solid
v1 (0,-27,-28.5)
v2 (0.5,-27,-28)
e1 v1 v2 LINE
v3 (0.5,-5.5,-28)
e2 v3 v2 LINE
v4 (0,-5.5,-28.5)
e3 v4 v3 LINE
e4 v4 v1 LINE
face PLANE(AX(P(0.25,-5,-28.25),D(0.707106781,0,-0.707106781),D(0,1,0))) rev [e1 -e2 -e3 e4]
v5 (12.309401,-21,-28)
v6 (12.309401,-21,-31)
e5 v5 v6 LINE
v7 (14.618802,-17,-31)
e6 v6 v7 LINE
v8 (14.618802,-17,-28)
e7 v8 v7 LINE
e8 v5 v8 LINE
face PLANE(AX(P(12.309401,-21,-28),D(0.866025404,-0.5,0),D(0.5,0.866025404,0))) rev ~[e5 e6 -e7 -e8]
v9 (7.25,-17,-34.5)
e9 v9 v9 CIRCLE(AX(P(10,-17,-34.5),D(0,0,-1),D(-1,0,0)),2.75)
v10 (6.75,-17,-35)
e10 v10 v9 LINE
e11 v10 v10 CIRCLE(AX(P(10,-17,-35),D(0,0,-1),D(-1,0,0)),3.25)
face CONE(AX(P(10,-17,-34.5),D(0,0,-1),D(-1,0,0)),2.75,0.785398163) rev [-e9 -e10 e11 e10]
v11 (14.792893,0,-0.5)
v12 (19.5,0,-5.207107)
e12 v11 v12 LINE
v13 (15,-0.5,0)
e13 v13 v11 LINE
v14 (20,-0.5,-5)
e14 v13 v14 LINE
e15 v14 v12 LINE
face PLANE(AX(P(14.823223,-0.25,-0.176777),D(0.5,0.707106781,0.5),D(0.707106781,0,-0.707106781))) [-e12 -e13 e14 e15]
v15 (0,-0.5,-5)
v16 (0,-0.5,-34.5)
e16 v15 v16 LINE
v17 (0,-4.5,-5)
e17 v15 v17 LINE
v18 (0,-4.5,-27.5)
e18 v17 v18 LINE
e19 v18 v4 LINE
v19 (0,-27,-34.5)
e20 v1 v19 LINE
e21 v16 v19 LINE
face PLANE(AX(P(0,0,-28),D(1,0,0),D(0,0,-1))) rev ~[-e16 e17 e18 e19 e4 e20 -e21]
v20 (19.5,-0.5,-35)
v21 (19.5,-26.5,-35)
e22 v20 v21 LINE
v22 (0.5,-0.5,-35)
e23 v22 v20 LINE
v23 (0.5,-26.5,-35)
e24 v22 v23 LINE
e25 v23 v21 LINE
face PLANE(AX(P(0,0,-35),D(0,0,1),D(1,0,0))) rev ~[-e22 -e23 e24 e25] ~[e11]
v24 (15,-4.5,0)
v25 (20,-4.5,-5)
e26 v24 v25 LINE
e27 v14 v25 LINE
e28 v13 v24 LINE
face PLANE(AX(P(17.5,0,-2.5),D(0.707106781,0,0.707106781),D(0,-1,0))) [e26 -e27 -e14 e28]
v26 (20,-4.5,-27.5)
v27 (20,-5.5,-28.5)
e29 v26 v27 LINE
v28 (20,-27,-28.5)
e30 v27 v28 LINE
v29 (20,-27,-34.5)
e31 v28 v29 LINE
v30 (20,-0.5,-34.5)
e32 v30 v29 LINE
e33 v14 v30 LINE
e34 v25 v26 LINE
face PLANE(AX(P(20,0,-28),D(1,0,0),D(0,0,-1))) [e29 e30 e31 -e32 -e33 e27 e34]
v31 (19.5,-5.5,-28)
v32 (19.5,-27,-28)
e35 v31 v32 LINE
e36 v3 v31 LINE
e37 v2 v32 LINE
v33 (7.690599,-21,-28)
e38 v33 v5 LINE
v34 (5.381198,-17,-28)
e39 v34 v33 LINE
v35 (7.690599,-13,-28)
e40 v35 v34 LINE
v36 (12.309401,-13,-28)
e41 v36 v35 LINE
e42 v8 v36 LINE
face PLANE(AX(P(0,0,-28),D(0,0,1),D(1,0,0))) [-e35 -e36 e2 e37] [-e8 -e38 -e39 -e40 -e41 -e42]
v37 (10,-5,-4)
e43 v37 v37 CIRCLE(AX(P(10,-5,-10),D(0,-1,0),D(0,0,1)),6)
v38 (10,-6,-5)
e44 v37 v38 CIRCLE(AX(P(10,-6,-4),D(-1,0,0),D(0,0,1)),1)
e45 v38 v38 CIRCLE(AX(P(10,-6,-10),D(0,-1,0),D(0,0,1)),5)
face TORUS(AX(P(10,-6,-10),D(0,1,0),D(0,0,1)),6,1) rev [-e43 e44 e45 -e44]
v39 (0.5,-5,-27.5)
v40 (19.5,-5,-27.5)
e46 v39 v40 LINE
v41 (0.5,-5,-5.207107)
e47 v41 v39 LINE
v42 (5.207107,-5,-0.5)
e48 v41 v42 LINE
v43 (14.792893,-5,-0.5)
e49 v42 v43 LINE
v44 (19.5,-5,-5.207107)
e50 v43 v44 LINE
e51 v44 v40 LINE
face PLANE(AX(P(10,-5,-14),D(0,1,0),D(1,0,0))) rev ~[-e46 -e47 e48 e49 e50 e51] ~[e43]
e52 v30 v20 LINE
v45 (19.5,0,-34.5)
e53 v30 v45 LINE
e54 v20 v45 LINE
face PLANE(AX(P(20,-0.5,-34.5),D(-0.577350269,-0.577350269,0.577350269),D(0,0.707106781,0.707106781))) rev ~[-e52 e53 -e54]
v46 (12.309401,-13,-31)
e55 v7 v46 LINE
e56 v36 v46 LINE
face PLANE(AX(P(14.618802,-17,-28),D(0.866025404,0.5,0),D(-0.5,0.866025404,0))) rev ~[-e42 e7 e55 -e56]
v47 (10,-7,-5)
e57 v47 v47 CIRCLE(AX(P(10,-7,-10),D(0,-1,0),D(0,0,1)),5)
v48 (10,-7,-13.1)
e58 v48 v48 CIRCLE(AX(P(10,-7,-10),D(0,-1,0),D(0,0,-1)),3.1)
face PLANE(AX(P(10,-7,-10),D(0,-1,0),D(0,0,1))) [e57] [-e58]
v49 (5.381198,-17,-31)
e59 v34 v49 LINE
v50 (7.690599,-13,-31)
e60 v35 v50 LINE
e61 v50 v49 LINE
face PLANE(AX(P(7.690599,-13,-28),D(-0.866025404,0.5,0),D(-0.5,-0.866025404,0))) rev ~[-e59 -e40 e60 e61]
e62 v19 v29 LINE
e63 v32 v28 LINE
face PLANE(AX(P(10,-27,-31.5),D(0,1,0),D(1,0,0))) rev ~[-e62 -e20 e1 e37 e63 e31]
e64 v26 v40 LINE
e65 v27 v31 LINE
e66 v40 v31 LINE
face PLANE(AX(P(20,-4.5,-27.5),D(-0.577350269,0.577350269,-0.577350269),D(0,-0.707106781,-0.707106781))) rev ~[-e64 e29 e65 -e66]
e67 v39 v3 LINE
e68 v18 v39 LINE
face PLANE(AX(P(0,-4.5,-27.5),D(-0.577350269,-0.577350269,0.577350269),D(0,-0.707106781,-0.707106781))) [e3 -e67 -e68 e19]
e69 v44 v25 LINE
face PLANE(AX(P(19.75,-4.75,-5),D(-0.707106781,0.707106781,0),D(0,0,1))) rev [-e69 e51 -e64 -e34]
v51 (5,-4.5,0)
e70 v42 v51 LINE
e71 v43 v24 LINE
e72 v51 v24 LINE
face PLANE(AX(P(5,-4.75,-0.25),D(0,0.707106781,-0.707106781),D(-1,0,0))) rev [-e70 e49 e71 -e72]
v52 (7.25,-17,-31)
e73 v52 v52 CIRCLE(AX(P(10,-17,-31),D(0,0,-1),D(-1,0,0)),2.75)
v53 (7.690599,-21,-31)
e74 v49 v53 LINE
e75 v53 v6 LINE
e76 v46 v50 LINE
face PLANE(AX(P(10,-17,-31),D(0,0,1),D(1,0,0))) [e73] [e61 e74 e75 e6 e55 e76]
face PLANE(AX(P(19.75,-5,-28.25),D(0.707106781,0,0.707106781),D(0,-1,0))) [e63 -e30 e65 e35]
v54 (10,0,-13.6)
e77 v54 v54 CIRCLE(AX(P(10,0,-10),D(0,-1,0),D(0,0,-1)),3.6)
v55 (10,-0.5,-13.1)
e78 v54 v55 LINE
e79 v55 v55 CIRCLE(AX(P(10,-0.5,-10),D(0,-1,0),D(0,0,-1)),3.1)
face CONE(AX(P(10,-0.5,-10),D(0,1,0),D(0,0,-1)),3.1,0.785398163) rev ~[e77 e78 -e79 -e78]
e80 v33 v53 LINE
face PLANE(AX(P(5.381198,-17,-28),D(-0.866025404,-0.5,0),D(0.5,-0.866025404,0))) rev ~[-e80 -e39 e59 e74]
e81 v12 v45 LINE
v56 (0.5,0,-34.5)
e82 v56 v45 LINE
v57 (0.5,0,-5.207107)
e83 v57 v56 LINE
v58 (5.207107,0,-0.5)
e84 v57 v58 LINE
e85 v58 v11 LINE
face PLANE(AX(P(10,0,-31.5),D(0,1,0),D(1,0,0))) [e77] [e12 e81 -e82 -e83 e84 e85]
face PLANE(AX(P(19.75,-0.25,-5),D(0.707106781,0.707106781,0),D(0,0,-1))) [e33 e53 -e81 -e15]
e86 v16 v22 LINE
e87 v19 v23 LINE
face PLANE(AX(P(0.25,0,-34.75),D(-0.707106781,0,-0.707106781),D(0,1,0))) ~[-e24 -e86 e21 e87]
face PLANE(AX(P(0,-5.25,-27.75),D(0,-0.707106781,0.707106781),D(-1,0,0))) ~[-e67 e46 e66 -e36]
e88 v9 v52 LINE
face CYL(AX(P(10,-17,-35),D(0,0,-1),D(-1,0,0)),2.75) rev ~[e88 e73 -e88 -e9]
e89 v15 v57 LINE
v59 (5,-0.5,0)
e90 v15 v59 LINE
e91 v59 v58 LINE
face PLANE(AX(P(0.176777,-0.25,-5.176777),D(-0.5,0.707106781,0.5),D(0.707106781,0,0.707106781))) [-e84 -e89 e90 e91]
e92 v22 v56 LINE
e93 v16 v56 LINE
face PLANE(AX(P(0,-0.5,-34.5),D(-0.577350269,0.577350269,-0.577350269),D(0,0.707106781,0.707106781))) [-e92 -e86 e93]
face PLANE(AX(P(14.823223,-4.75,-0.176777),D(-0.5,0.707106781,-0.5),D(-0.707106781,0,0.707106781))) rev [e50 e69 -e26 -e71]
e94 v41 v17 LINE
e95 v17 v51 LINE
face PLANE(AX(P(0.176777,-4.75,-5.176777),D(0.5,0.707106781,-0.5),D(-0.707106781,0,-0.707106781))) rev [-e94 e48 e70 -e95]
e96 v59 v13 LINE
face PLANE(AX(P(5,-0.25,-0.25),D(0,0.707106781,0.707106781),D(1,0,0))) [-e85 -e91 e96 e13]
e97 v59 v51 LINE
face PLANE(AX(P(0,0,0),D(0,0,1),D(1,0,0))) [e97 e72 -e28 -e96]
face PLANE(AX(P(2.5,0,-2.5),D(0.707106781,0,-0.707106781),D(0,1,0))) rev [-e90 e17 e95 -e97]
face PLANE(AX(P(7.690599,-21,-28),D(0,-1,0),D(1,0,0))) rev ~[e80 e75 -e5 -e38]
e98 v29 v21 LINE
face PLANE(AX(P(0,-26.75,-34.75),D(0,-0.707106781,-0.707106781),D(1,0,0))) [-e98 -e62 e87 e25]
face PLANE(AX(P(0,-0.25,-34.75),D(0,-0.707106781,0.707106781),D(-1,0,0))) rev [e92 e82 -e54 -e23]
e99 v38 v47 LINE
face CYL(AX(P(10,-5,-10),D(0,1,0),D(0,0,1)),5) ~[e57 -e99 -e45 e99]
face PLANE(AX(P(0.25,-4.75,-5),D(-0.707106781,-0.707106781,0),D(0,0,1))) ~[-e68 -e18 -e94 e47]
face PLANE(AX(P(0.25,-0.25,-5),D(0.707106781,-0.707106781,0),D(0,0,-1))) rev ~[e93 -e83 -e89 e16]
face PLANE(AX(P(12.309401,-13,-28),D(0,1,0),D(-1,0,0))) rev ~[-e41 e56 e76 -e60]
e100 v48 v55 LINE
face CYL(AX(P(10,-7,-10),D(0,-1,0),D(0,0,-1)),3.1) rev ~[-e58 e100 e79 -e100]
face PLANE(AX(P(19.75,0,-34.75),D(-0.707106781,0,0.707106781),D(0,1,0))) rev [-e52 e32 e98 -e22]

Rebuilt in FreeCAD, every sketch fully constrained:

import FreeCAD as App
import Part
import Sketcher
from FreeCAD import Vector
Q = App.Units.Quantity


def edges_at(feature, points):
    """Names of the edges that pass closest to the given points."""
    edges = feature.Shape.Edges
    near = lambda p: min(range(len(edges)), key=lambda i: edges[i].distToShape(Part.Vertex(*p))[0])
    return sorted({f"Edge{near(p) + 1}" for p in points})


def add_polygon(sketch, points):
    """Adds a closed chain of lines whose ends are joined by coincident constraints."""
    first, n = sketch.GeometryCount, len(points)
    for a, b in zip(points, points[1:] + points[:1]):
        sketch.addGeometry(Part.LineSegment(App.Vector(*a, 0), App.Vector(*b, 0)), False)
    for i in range(n):
        sketch.addConstraint(Sketcher.Constraint("Coincident", first + i, 2, first + (i + 1) % n, 1))

doc = App.newDocument("Part")
params = doc.addObject("Spreadsheet::Sheet", "Params")
for row, (alias, value) in enumerate([
    ("sketch1_width", "20 mm"),
    ("sketch1_height", "28 mm"),
    ("pad1_length", "5 mm"),
    ("sketch2_width", "20 mm"),
    ("sketch2_height", "7 mm"),
    ("pad2_length", "27 mm"),
    ("sketch3_diameter", "10 mm"),
    ("pad3_length", "2 mm"),
    ("sketch4_diameter", "5.5 mm"),
    ("fillet_radius", "1 mm"),
    ("sketch5_diameter", "6.2 mm"),
    ("pocket3_length", "3 mm"),
    ("chamfer_size", "5 mm"),
    ("chamfer2_size", "0.5 mm"),
], start=1):
    params.set(f"A{row}", alias)
    params.set(f"B{row}", "=" + value)
    params.setAlias(f"B{row}", alias)

body = doc.addObject("PartDesign::Body", "Body")

sketch1 = doc.addObject("Sketcher::SketchObject", "Sketch")
body.addObject(sketch1)
sketch1.AttachmentSupport = (doc.XZ_Plane, [""])
sketch1.MapMode = "FlatFace"
add_polygon(sketch1, [(0, -28), (0, 0), (20, 0), (20, -28)])
sketch1.addConstraint([
    Sketcher.Constraint("Vertical", 0),
    Sketcher.Constraint("Horizontal", 1),
    Sketcher.Constraint("Vertical", 2),
    Sketcher.Constraint("Horizontal", 3),
    Sketcher.Constraint("Coincident", 0, 2, -1, 1),
    Sketcher.Constraint("DistanceX", 1, 1, 1, 2, Q("20 mm")),
    Sketcher.Constraint("DistanceY", 0, 1, 0, 2, Q("28 mm")),
])
sketch1.setExpression("Constraints[9]", "Params.sketch1_width")
sketch1.setExpression("Constraints[10]", "Params.sketch1_height")
pad1 = doc.addObject("PartDesign::Pad", "Pad")
body.addObject(pad1)
pad1.Profile = sketch1
pad1.setExpression("Length", "Params.pad1_length")

sketch2 = doc.addObject("Sketcher::SketchObject", "Sketch001")
body.addObject(sketch2)
sketch2.AttachmentSupport = (doc.XZ_Plane, [""])
sketch2.MapMode = "FlatFace"
add_polygon(sketch2, [(0, -35), (0, -28), (20, -28), (20, -35)])
sketch2.addConstraint([
    Sketcher.Constraint("Vertical", 0),
    Sketcher.Constraint("Horizontal", 1),
    Sketcher.Constraint("Vertical", 2),
    Sketcher.Constraint("Horizontal", 3),
    Sketcher.Constraint("PointOnObject", 0, 2, -2),
    Sketcher.Constraint("DistanceX", 1, 1, 1, 2, Q("20 mm")),
    Sketcher.Constraint("DistanceY", 0, 1, 0, 2, Q("7 mm")),
    Sketcher.Constraint("DistanceY", 0, 2, -1, 1, Q("28 mm")),
])
sketch2.setExpression("Constraints[9]", "Params.sketch2_width")
sketch2.setExpression("Constraints[10]", "Params.sketch2_height")
pad2 = doc.addObject("PartDesign::Pad", "Pad001")
body.addObject(pad2)
pad2.Profile = sketch2
pad2.setExpression("Length", "Params.pad2_length")

sketch3 = doc.addObject("Sketcher::SketchObject", "Sketch002")
body.addObject(sketch3)
sketch3.AttachmentSupport = (doc.XZ_Plane, [""])
sketch3.MapMode = "FlatFace"
sketch3.AttachmentOffset = App.Placement(Vector(0, 0, 5), App.Rotation())
sketch3.addGeometry(Part.Circle(Vector(10, -10, 0), Vector(0, 0, 1), 5), False)
sketch3.addConstraint([
    Sketcher.Constraint("Diameter", 0, Q("10 mm")),
    Sketcher.Constraint("DistanceX", -1, 1, 0, 3, Q("10 mm")),
    Sketcher.Constraint("DistanceY", 0, 3, -1, 1, Q("10 mm")),
])
sketch3.setExpression("Constraints[0]", "Params.sketch3_diameter")
pad3 = doc.addObject("PartDesign::Pad", "Pad002")
body.addObject(pad3)
pad3.Profile = sketch3
pad3.setExpression("Length", "Params.pad3_length")

sketch4 = doc.addObject("Sketcher::SketchObject", "Sketch003")
body.addObject(sketch4)
sketch4.AttachmentSupport = (doc.XY_Plane, [""])
sketch4.MapMode = "FlatFace"
sketch4.AttachmentOffset = App.Placement(Vector(0, 0, -35), App.Rotation())
sketch4.addGeometry(Part.Circle(Vector(10, -17, 0), Vector(0, 0, 1), 2.8), False)
sketch4.addConstraint([
    Sketcher.Constraint("Diameter", 0, Q("5.5 mm")),
    Sketcher.Constraint("DistanceX", -1, 1, 0, 3, Q("10 mm")),
    Sketcher.Constraint("DistanceY", 0, 3, -1, 1, Q("17 mm")),
])
sketch4.setExpression("Constraints[0]", "Params.sketch4_diameter")
pocket1 = doc.addObject("PartDesign::Pocket", "Pocket")
body.addObject(pocket1)
pocket1.Profile = sketch4
pocket1.Type = "ThroughAll"
pocket1.Reversed = True
doc.recompute()

fillet = doc.addObject("PartDesign::Fillet", "Fillet")
body.addObject(fillet)
fillet.Base = (pocket1, edges_at(pocket1, [(10, -5, -15)]))
fillet.setExpression("Radius", "Params.fillet_radius")

sketch5 = doc.addObject("Sketcher::SketchObject", "Sketch004")
body.addObject(sketch5)
sketch5.AttachmentSupport = (doc.XZ_Plane, [""])
sketch5.MapMode = "FlatFace"
sketch5.AttachmentOffset = App.Placement(Vector(0, 0, 7), App.Rotation())
sketch5.addGeometry(Part.Circle(Vector(10, -10, 0), Vector(0, 0, 1), 3.1), False)
sketch5.addConstraint([
    Sketcher.Constraint("Diameter", 0, Q("6.2 mm")),
    Sketcher.Constraint("DistanceX", -1, 1, 0, 3, Q("10 mm")),
    Sketcher.Constraint("DistanceY", 0, 3, -1, 1, Q("10 mm")),
])
sketch5.setExpression("Constraints[0]", "Params.sketch5_diameter")
pocket2 = doc.addObject("PartDesign::Pocket", "Pocket001")
body.addObject(pocket2)
pocket2.Profile = sketch5
pocket2.Type = "ThroughAll"

sketch6 = doc.addObject("Sketcher::SketchObject", "Sketch005")
body.addObject(sketch6)
sketch6.AttachmentSupport = (doc.XY_Plane, [""])
sketch6.MapMode = "FlatFace"
sketch6.AttachmentOffset = App.Placement(Vector(0, 0, -28), App.Rotation())
add_polygon(sketch6, [(14.6, -17), (12.3, -13), (7.7, -13), (5.4, -17), (7.7, -21), (12.3, -21)])
sketch6.addConstraint([
    Sketcher.Constraint("Horizontal", 1),
    Sketcher.Constraint("Horizontal", 4),
    Sketcher.Constraint("Parallel", 0, 3),
    Sketcher.Constraint("Parallel", 2, 5),
    Sketcher.Constraint("Horizontal", 2, 2, 5, 2),
    Sketcher.Constraint("Vertical", 1, 2, 3, 2),
    Sketcher.Constraint("Vertical", 0, 2, 4, 2),
    Sketcher.Constraint("Angle", 0, Q("120 deg")),
    Sketcher.Constraint("DistanceY", 0, 2, -1, 1, Q("13 mm")),
    Sketcher.Constraint("DistanceY", 2, 2, -1, 1, Q("17 mm")),
    Sketcher.Constraint("DistanceX", -1, 1, 0, 2, Q("12.309401 mm")),
    Sketcher.Constraint("DistanceX", -1, 1, 1, 2, Q("7.690599 mm")),
])
pocket3 = doc.addObject("PartDesign::Pocket", "Pocket002")
body.addObject(pocket3)
pocket3.Profile = sketch6
pocket3.setExpression("Length", "Params.pocket3_length")
doc.recompute()

chamfer = doc.addObject("PartDesign::Chamfer", "Chamfer")
body.addObject(chamfer)
chamfer.Base = (pocket3, edges_at(pocket3, [(0, -2.5, 0), (20, -2.5, 0)]))
chamfer.setExpression("Size", "Params.chamfer_size")
doc.recompute()

chamfer2 = doc.addObject("PartDesign::Chamfer", "Chamfer001")
body.addObject(chamfer2)
chamfer2.Base = (chamfer, edges_at(chamfer, [
    (20, -16, -28),
    (0, -16, -28),
    (10, 0, -35),
    (10, -5, -28),
    (0, -13.5, -35),
    (20, -13.5, -35),
    (10, -27, -35),
    (12.75, -17, -35),
    (10, 0, -6.9),
    (10, 0, 0),
    (10, -5, 0),
    (20, 0, -20),
    (0, 0, -20),
    (2.5, 0, -2.5),
    (17.5, 0, -2.5),
    (20, -5, -16.5),
    (0, -5, -16.5),
    (2.5, -5, -2.5),
    (17.5, -5, -2.5),
]))
chamfer2.setExpression("Size", "Params.chamfer2_size")

doc.recompute()
